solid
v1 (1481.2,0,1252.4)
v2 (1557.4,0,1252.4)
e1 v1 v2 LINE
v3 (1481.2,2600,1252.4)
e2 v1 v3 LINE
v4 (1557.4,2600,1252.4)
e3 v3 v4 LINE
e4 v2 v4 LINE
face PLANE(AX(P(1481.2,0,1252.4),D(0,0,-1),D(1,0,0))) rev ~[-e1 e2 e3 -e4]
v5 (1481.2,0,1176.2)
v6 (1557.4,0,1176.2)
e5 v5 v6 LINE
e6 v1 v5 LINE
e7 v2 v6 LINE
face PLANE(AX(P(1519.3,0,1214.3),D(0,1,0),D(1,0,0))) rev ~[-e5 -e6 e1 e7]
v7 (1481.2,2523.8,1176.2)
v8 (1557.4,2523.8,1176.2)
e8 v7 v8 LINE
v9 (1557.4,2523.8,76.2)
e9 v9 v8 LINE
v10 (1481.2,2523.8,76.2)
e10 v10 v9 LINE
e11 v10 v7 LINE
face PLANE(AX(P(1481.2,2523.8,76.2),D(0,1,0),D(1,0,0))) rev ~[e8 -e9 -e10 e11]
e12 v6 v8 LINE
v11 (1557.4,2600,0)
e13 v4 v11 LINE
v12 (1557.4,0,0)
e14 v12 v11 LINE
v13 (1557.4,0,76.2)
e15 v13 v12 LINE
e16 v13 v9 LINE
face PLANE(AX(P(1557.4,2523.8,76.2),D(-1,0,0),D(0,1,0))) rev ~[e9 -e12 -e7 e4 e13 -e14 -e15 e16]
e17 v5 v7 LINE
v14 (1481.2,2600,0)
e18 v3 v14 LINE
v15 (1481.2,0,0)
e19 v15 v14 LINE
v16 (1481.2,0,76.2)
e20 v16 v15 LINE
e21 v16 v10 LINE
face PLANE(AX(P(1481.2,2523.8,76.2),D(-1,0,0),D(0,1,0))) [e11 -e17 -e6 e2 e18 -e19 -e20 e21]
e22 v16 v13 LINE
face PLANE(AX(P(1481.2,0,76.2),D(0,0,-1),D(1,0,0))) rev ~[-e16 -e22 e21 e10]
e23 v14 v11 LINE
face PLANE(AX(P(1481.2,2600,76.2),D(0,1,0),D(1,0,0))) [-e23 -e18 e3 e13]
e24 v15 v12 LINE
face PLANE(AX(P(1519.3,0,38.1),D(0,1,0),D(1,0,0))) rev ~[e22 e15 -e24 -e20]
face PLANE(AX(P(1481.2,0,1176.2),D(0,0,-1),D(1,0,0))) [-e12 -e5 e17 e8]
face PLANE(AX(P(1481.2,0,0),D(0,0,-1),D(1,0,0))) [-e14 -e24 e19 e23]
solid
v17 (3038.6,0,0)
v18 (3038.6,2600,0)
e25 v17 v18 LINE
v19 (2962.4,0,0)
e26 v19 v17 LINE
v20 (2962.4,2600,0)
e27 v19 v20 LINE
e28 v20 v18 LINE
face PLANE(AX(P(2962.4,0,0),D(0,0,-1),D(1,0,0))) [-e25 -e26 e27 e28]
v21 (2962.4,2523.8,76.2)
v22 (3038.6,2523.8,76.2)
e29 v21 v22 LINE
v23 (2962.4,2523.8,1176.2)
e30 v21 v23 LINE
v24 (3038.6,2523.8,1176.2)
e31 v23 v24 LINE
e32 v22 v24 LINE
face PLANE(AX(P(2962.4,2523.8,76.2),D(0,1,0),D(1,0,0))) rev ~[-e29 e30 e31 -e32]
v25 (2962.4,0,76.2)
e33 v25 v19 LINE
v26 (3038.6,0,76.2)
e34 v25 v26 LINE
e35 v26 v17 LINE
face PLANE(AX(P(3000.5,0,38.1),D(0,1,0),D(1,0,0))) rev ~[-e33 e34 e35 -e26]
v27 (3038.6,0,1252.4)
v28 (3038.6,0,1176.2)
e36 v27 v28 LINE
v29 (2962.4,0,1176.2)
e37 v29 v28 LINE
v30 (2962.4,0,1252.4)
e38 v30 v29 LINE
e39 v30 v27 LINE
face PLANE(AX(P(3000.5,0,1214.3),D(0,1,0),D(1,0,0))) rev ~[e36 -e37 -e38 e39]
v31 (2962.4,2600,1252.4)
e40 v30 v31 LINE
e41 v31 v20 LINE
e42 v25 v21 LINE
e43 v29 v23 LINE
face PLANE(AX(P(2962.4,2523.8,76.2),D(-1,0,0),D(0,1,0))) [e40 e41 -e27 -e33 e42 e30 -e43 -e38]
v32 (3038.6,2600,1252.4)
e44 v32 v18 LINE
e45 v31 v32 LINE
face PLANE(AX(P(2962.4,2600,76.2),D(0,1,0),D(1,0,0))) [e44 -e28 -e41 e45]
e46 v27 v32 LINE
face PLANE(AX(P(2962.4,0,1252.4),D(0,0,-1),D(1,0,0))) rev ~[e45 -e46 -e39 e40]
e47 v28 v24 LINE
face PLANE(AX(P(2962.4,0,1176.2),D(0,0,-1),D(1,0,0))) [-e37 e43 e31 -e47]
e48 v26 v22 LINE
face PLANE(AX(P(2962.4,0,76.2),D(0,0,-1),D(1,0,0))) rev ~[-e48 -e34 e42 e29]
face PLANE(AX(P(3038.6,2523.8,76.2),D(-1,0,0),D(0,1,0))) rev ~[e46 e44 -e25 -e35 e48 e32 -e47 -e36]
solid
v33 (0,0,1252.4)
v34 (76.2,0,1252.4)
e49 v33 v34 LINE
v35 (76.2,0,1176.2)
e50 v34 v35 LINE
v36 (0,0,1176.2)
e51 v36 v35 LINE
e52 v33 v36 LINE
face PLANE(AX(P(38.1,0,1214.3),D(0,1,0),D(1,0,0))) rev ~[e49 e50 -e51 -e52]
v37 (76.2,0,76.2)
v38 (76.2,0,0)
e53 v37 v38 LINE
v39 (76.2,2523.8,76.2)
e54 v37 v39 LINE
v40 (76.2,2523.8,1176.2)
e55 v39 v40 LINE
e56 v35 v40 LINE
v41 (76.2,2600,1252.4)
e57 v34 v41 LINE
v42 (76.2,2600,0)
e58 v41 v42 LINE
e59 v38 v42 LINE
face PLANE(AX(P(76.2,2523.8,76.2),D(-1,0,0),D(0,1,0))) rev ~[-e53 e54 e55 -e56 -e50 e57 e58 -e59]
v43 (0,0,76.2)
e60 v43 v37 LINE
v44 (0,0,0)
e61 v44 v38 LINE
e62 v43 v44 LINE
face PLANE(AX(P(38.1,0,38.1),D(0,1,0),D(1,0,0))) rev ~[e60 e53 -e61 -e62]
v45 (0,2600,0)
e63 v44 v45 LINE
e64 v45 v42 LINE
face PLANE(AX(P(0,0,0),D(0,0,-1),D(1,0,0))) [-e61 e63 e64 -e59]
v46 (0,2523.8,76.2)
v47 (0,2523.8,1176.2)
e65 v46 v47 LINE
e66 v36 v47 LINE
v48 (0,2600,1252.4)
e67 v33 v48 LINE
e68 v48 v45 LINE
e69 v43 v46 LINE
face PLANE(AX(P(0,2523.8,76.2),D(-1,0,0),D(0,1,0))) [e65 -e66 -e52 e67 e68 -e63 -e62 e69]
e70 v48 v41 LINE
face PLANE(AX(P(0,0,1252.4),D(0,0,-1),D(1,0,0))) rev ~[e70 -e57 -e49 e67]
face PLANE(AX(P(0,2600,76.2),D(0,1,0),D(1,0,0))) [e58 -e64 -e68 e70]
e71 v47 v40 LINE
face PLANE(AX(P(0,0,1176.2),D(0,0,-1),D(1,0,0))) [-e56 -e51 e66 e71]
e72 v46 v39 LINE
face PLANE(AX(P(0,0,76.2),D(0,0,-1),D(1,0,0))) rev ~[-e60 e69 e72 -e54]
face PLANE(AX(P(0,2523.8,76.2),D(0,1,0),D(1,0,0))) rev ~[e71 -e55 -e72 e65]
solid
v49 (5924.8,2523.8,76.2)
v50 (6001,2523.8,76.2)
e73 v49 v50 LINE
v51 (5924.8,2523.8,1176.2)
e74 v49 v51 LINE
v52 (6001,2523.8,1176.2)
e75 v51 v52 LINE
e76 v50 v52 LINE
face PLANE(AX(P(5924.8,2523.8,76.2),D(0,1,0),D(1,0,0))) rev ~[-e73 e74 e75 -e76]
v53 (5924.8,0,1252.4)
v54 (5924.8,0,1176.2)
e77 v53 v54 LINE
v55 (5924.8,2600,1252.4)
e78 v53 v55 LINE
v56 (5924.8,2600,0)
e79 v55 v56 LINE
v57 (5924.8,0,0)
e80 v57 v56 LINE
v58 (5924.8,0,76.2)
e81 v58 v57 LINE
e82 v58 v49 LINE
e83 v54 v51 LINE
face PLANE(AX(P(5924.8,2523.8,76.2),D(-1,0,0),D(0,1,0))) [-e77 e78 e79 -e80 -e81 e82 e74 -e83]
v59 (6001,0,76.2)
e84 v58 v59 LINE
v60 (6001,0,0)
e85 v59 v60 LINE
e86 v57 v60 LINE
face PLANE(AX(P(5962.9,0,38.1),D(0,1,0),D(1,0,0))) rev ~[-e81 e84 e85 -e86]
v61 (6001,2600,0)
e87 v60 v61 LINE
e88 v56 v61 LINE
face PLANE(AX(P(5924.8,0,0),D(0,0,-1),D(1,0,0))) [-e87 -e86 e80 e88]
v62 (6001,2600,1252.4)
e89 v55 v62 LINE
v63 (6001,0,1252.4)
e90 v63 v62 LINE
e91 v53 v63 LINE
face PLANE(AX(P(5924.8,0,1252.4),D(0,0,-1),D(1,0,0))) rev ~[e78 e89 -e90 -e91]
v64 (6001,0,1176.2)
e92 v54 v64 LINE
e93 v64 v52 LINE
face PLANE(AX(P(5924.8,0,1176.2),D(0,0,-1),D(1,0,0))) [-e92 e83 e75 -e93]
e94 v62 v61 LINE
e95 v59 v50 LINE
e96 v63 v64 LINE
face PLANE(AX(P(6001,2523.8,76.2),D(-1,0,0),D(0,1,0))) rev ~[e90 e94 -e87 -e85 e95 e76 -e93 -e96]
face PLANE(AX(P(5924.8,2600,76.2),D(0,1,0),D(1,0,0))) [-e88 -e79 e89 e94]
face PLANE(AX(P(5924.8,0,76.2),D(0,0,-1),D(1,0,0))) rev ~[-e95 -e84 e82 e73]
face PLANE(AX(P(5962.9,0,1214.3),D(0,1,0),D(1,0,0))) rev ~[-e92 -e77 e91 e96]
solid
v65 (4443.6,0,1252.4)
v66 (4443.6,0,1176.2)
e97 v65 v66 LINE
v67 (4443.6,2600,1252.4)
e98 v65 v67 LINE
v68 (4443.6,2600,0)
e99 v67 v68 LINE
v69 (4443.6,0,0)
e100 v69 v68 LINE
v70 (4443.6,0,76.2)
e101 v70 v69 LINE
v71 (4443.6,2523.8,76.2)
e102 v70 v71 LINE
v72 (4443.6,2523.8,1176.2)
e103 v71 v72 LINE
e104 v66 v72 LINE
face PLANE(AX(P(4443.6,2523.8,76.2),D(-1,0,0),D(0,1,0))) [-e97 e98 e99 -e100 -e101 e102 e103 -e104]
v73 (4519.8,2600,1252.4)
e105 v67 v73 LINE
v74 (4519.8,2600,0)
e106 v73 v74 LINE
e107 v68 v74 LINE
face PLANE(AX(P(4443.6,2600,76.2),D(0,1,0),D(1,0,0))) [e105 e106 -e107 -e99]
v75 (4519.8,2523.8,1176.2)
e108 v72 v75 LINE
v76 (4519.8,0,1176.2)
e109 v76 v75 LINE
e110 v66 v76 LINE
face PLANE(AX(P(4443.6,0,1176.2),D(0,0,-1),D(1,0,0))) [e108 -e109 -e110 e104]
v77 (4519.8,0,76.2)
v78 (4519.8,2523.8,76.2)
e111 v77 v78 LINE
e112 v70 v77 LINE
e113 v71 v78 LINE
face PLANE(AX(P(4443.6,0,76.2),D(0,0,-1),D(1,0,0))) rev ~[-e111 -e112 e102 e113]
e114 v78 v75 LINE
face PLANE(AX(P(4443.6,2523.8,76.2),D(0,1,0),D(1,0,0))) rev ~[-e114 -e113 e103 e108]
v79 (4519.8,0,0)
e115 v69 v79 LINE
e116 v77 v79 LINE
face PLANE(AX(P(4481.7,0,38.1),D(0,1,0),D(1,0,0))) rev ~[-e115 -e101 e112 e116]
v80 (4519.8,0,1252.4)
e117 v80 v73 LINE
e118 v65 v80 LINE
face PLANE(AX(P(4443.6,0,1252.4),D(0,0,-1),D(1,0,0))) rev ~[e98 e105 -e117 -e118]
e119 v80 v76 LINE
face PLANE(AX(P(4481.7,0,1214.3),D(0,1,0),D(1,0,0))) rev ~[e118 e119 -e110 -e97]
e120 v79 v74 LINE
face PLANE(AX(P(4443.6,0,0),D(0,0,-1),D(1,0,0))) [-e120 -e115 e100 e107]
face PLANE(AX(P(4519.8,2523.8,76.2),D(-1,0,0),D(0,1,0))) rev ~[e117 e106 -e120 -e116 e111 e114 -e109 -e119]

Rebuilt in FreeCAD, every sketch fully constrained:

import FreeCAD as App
import Part
import Sketcher


def add_polygon(sketch, points):
    """Adds a closed chain of lines whose ends are joined by coincident constraints."""
    first, n = sketch.GeometryCount, len(points)
    for a, b in zip(points, points[1:] + points[:1]):
        sketch.addGeometry(Part.LineSegment(App.Vector(*a, 0), App.Vector(*b, 0)), False)
    for i in range(n):
        sketch.addConstraint(Sketcher.Constraint("Coincident", first + i, 2, first + (i + 1) % n, 1))

doc = App.newDocument("Part")
body = doc.addObject("PartDesign::Body", "Body")

# Sketch on XZ plane
sketch1 = body.newObject("Sketcher::SketchObject", "Sketch")
sketch1.AttachmentSupport = (doc.getObject("XZ_Plane"), [""])
sketch1.MapMode = "FlatFace"
add_polygon(sketch1, [(0, 0), (0, 76), (76, 76), (76, 0)])  # lines 0-3
sketch1.addConstraint([
    Sketcher.Constraint("Vertical", 0),
    Sketcher.Constraint("Horizontal", 1),
    Sketcher.Constraint("Vertical", 2),
    Sketcher.Constraint("Horizontal", 3),
    Sketcher.Constraint("Coincident", 3, 2, -1, 1),
    Sketcher.Constraint("Equal", 3, 0),
    Sketcher.Constraint("DistanceX", 1, 1, 1, 2, 76.2),
])
pad1 = body.newObject("PartDesign::Pad", "Pad")
pad1.Profile = sketch1
pad1.Length = 2600
pad1.Reversed = True
body2 = doc.addObject("PartDesign::Body", "Body001")

# Sketch on XZ plane
sketch2 = body2.newObject("Sketcher::SketchObject", "Sketch001")
sketch2.AttachmentSupport = (doc.getObject("XZ_Plane001"), [""])
sketch2.MapMode = "FlatFace"
add_polygon(sketch2, [(1481, 0), (1481, 76), (1557, 76), (1557, 0)])  # lines 0-3
sketch2.addConstraint([
    Sketcher.Constraint("Vertical", 0),
    Sketcher.Constraint("Horizontal", 1),
    Sketcher.Constraint("Vertical", 2),
    Sketcher.Constraint("Horizontal", 3),
    Sketcher.Constraint("PointOnObject", 2, 2, -1),
    Sketcher.Constraint("Equal", 3, 0),
    Sketcher.Constraint("DistanceX", 1, 1, 1, 2, 76.2),
    Sketcher.Constraint("DistanceX", -1, 1, 0, 2, 1481.2),
])
pad2 = body2.newObject("PartDesign::Pad", "Pad001")
pad2.Profile = sketch2
pad2.Length = 2600
pad2.Reversed = True
body3 = doc.addObject("PartDesign::Body", "Body002")

# Sketch on XZ plane
sketch3 = body3.newObject("Sketcher::SketchObject", "Sketch002")
sketch3.AttachmentSupport = (doc.getObject("XZ_Plane002"), [""])
sketch3.MapMode = "FlatFace"
add_polygon(sketch3, [(2962, 0), (2962, 76), (3039, 76), (3039, 0)])  # lines 0-3
sketch3.addConstraint([
    Sketcher.Constraint("Vertical", 0),
    Sketcher.Constraint("Horizontal", 1),
    Sketcher.Constraint("Vertical", 2),
    Sketcher.Constraint("Horizontal", 3),
    Sketcher.Constraint("PointOnObject", 2, 2, -1),
    Sketcher.Constraint("Equal", 3, 0),
    Sketcher.Constraint("DistanceX", 1, 1, 1, 2, 76.2),
    Sketcher.Constraint("DistanceX", -1, 1, 0, 2, 2962.4),
])
pad3 = body3.newObject("PartDesign::Pad", "Pad002")
pad3.Profile = sketch3
pad3.Length = 2600
pad3.Reversed = True
body4 = doc.addObject("PartDesign::Body", "Body003")

# Sketch on XZ plane
sketch4 = body4.newObject("Sketcher::SketchObject", "Sketch003")
sketch4.AttachmentSupport = (doc.getObject("XZ_Plane003"), [""])
sketch4.MapMode = "FlatFace"
add_polygon(sketch4, [(4444, 0), (4444, 76), (4520, 76), (4520, 0)])  # lines 0-3
sketch4.addConstraint([
    Sketcher.Constraint("Vertical", 0),
    Sketcher.Constraint("Horizontal", 1),
    Sketcher.Constraint("Vertical", 2),
    Sketcher.Constraint("Horizontal", 3),
    Sketcher.Constraint("PointOnObject", 2, 2, -1),
    Sketcher.Constraint("Equal", 3, 0),
    Sketcher.Constraint("DistanceX", 1, 1, 1, 2, 76.2),
    Sketcher.Constraint("DistanceX", -1, 1, 0, 2, 4443.6),
])
pad4 = body4.newObject("PartDesign::Pad", "Pad003")
pad4.Profile = sketch4
pad4.Length = 2600
pad4.Reversed = True
body5 = doc.addObject("PartDesign::Body", "Body004")

# Sketch on XZ plane
sketch5 = body5.newObject("Sketcher::SketchObject", "Sketch004")
sketch5.AttachmentSupport = (doc.getObject("XZ_Plane004"), [""])
sketch5.MapMode = "FlatFace"
add_polygon(sketch5, [(5925, 0), (5925, 76), (6001, 76), (6001, 0)])  # lines 0-3
sketch5.addConstraint([
    Sketcher.Constraint("Vertical", 0),
    Sketcher.Constraint("Horizontal", 1),
    Sketcher.Constraint("Vertical", 2),
    Sketcher.Constraint("Horizontal", 3),
    Sketcher.Constraint("PointOnObject", 2, 2, -1),
    Sketcher.Constraint("Equal", 3, 0),
    Sketcher.Constraint("DistanceX", 1, 1, 1, 2, 76.2),
    Sketcher.Constraint("DistanceX", -1, 1, 1, 2, 6001.0),
])
pad5 = body5.newObject("PartDesign::Pad", "Pad004")
pad5.Profile = sketch5
pad5.Length = 2600
pad5.Reversed = True
body6 = doc.addObject("PartDesign::Body", "Body005")

# Sketch on XZ plane
sketch6 = body6.newObject("Sketcher::SketchObject", "Sketch005")
sketch6.AttachmentSupport = (doc.getObject("XZ_Plane005"), [""])
sketch6.MapMode = "FlatFace"
add_polygon(sketch6, [(5925, 1176), (5925, 1252), (6001, 1252), (6001, 1176)])  # lines 0-3
sketch6.addConstraint([
    Sketcher.Constraint("Vertical", 0),
    Sketcher.Constraint("Horizontal", 1),
    Sketcher.Constraint("Vertical", 2),
    Sketcher.Constraint("Horizontal", 3),
    Sketcher.Constraint("Equal", 3, 0),
    Sketcher.Constraint("DistanceX", 1, 1, 1, 2, 76.2),
    Sketcher.Constraint("DistanceX", -1, 1, 1, 2, 6001.0),
    Sketcher.Constraint("DistanceY", -1, 1, 0, 2, 1252.4),
])
pad6 = body6.newObject("PartDesign::Pad", "Pad005")
pad6.Profile = sketch6
pad6.Length = 2600
pad6.Reversed = True
body7 = doc.addObject("PartDesign::Body", "Body006")

# Sketch on XZ plane
sketch7 = body7.newObject("Sketcher::SketchObject", "Sketch006")
sketch7.AttachmentSupport = (doc.getObject("XZ_Plane006"), [""])
sketch7.MapMode = "FlatFace"
add_polygon(sketch7, [(4444, 1176), (4444, 1252), (4520, 1252), (4520, 1176)])  # lines 0-3
sketch7.addConstraint([
    Sketcher.Constraint("Vertical", 0),
    Sketcher.Constraint("Horizontal", 1),
    Sketcher.Constraint("Vertical", 2),
    Sketcher.Constraint("Horizontal", 3),
    Sketcher.Constraint("Equal", 3, 0),
    Sketcher.Constraint("DistanceX", 1, 1, 1, 2, 76.2),
    Sketcher.Constraint("DistanceX", -1, 1, 0, 2, 4443.6),
    Sketcher.Constraint("DistanceY", -1, 1, 0, 2, 1252.4),
])
pad7 = body7.newObject("PartDesign::Pad", "Pad006")
pad7.Profile = sketch7
pad7.Length = 2600
pad7.Reversed = True
body8 = doc.addObject("PartDesign::Body", "Body007")

# Sketch on XZ plane
sketch8 = body8.newObject("Sketcher::SketchObject", "Sketch007")
sketch8.AttachmentSupport = (doc.getObject("XZ_Plane007"), [""])
sketch8.MapMode = "FlatFace"
add_polygon(sketch8, [(2962, 1176), (2962, 1252), (3039, 1252), (3039, 1176)])  # lines 0-3
sketch8.addConstraint([
    Sketcher.Constraint("Vertical", 0),
    Sketcher.Constraint("Horizontal", 1),
    Sketcher.Constraint("Vertical", 2),
    Sketcher.Constraint("Horizontal", 3),
    Sketcher.Constraint("Equal", 3, 0),
    Sketcher.Constraint("DistanceX", 1, 1, 1, 2, 76.2),
    Sketcher.Constraint("DistanceX", -1, 1, 0, 2, 2962.4),
    Sketcher.Constraint("DistanceY", -1, 1, 0, 2, 1252.4),
])
pad8 = body8.newObject("PartDesign::Pad", "Pad007")
pad8.Profile = sketch8
pad8.Length = 2600
pad8.Reversed = True
body9 = doc.addObject("PartDesign::Body", "Body008")

# Sketch on XZ plane
sketch9 = body9.newObject("Sketcher::SketchObject", "Sketch008")
sketch9.AttachmentSupport = (doc.getObject("XZ_Plane008"), [""])
sketch9.MapMode = "FlatFace"
add_polygon(sketch9, [(1481, 1176), (1481, 1252), (1557, 1252), (1557, 1176)])  # lines 0-3
sketch9.addConstraint([
    Sketcher.Constraint("Vertical", 0),
    Sketcher.Constraint("Horizontal", 1),
    Sketcher.Constraint("Vertical", 2),
    Sketcher.Constraint("Horizontal", 3),
    Sketcher.Constraint("Equal", 3, 0),
    Sketcher.Constraint("DistanceX", 1, 1, 1, 2, 76.2),
    Sketcher.Constraint("DistanceX", -1, 1, 0, 2, 1481.2),
    Sketcher.Constraint("DistanceY", -1, 1, 0, 2, 1252.4),
])
pad9 = body9.newObject("PartDesign::Pad", "Pad008")
pad9.Profile = sketch9
pad9.Length = 2600
pad9.Reversed = True
body10 = doc.addObject("PartDesign::Body", "Body009")

# Sketch on XZ plane
sketch10 = body10.newObject("Sketcher::SketchObject", "Sketch009")
sketch10.AttachmentSupport = (doc.getObject("XZ_Plane009"), [""])
sketch10.MapMode = "FlatFace"
add_polygon(sketch10, [(0, 1176), (0, 1252), (76, 1252), (76, 1176)])  # lines 0-3
sketch10.addConstraint([
    Sketcher.Constraint("Vertical", 0),
    Sketcher.Constraint("Horizontal", 1),
    Sketcher.Constraint("Vertical", 2),
    Sketcher.Constraint("Horizontal", 3),
    Sketcher.Constraint("PointOnObject", 0, 2, -2),
    Sketcher.Constraint("Equal", 3, 0),
    Sketcher.Constraint("DistanceX", 1, 1, 1, 2, 76.2),
    Sketcher.Constraint("DistanceY", -1, 1, 0, 2, 1252.4),
])
pad10 = body10.newObject("PartDesign::Pad", "Pad009")
pad10.Profile = sketch10
pad10.Length = 2600
pad10.Reversed = True
body.AllowCompound = True
doc.recompute()

boolean = body.newObject("PartDesign::Boolean", "Boolean")
boolean.Type = "Fuse"
boolean.addObjects([body2])
doc.recompute()

boolean2 = body.newObject("PartDesign::Boolean", "Boolean001")
boolean2.Type = "Fuse"
boolean2.addObjects([body3])
doc.recompute()

boolean3 = body.newObject("PartDesign::Boolean", "Boolean002")
boolean3.Type = "Fuse"
boolean3.addObjects([body4])
doc.recompute()

boolean4 = body.newObject("PartDesign::Boolean", "Boolean003")
boolean4.Type = "Fuse"
boolean4.addObjects([body5])
doc.recompute()

boolean5 = body.newObject("PartDesign::Boolean", "Boolean004")
boolean5.Type = "Fuse"
boolean5.addObjects([body6])
doc.recompute()

boolean6 = body.newObject("PartDesign::Boolean", "Boolean005")
boolean6.Type = "Fuse"
boolean6.addObjects([body7])
doc.recompute()

boolean7 = body.newObject("PartDesign::Boolean", "Boolean006")
boolean7.Type = "Fuse"
boolean7.addObjects([body8])
doc.recompute()

boolean8 = body.newObject("PartDesign::Boolean", "Boolean007")
boolean8.Type = "Fuse"
boolean8.addObjects([body9])
doc.recompute()

boolean9 = body.newObject("PartDesign::Boolean", "Boolean008")
boolean9.Type = "Fuse"
boolean9.addObjects([body10])

# Sketch on XY plane
sketch11 = body.newObject("Sketcher::SketchObject", "Sketch010")
sketch11.AttachmentSupport = (doc.getObject("XY_Plane"), [""])
sketch11.MapMode = "FlatFace"
sketch11.AttachmentOffset = App.Placement(App.Vector(0, 0, 76.2), App.Rotation())
add_polygon(sketch11, [(0, 2600), (0, 2524), (76, 2524), (76, 2600)])  # lines 0-3
add_polygon(sketch11, [(1481, 2600), (1481, 2524), (1557, 2524), (1557, 2600)])  # lines 4-7
add_polygon(sketch11, [(2962, 2600), (2962, 2524), (3039, 2524), (3039, 2600)])  # lines 8-11
add_polygon(sketch11, [(4444, 2600), (4444, 2524), (4520, 2524), (4520, 2600)])  # lines 12-15
add_polygon(sketch11, [(5925, 2600), (5925, 2524), (6001, 2524), (6001, 2600)])  # lines 16-19
sketch11.addConstraint([
    Sketcher.Constraint("Vertical", 0),
    Sketcher.Constraint("Horizontal", 1),
    Sketcher.Constraint("Vertical", 2),
    Sketcher.Constraint("Horizontal", 3),
    Sketcher.Constraint("Vertical", 4),
    Sketcher.Constraint("Horizontal", 5),
    Sketcher.Constraint("Vertical", 6),
    Sketcher.Constraint("Horizontal", 7),
    Sketcher.Constraint("Vertical", 8),
    Sketcher.Constraint("Horizontal", 9),
    Sketcher.Constraint("Vertical", 10),
    Sketcher.Constraint("Horizontal", 11),
    Sketcher.Constraint("Vertical", 12),
    Sketcher.Constraint("Horizontal", 13),
    Sketcher.Constraint("Vertical", 14),
    Sketcher.Constraint("Horizontal", 15),
    Sketcher.Constraint("Vertical", 16),
    Sketcher.Constraint("Horizontal", 17),
    Sketcher.Constraint("Vertical", 18),
    Sketcher.Constraint("Horizontal", 19),
    Sketcher.Constraint("PointOnObject", 0, 2, -2),
    Sketcher.Constraint("Horizontal", 1, 2, 4, 2),
    Sketcher.Constraint("Horizontal", 3, 2, 6, 2),
    Sketcher.Constraint("Horizontal", 5, 2, 8, 2),
    Sketcher.Constraint("Horizontal", 7, 2, 10, 2),
    Sketcher.Constraint("Horizontal", 9, 2, 12, 2),
    Sketcher.Constraint("Horizontal", 11, 2, 14, 2),
    Sketcher.Constraint("Horizontal", 13, 2, 16, 2),
    Sketcher.Constraint("Horizontal", 15, 2, 18, 2),
    Sketcher.Constraint("Equal", 3, 5),
    Sketcher.Constraint("Equal", 7, 9),
    Sketcher.Constraint("Equal", 11, 13),
    Sketcher.Constraint("Equal", 15, 17),
    Sketcher.Constraint("Equal", 19, 0),
    Sketcher.Constraint("DistanceX", 1, 1, 1, 2, 76.2),
    Sketcher.Constraint("DistanceY", -1, 1, 2, 2, 2600.0),
    Sketcher.Constraint("DistanceX", -1, 1, 17, 2, 6001.0),
    Sketcher.Constraint("DistanceX", 1, 2, 4, 2, 1405.0),
    Sketcher.Constraint("DistanceX", 5, 2, 8, 2, 1405.0),
    Sketcher.Constraint("DistanceX", 9, 2, 12, 2, 1405.0),
])
pad11 = body.newObject("PartDesign::Pad", "Pad010")
pad11.Profile = sketch11
pad11.Length = 1100

doc.recompute()
